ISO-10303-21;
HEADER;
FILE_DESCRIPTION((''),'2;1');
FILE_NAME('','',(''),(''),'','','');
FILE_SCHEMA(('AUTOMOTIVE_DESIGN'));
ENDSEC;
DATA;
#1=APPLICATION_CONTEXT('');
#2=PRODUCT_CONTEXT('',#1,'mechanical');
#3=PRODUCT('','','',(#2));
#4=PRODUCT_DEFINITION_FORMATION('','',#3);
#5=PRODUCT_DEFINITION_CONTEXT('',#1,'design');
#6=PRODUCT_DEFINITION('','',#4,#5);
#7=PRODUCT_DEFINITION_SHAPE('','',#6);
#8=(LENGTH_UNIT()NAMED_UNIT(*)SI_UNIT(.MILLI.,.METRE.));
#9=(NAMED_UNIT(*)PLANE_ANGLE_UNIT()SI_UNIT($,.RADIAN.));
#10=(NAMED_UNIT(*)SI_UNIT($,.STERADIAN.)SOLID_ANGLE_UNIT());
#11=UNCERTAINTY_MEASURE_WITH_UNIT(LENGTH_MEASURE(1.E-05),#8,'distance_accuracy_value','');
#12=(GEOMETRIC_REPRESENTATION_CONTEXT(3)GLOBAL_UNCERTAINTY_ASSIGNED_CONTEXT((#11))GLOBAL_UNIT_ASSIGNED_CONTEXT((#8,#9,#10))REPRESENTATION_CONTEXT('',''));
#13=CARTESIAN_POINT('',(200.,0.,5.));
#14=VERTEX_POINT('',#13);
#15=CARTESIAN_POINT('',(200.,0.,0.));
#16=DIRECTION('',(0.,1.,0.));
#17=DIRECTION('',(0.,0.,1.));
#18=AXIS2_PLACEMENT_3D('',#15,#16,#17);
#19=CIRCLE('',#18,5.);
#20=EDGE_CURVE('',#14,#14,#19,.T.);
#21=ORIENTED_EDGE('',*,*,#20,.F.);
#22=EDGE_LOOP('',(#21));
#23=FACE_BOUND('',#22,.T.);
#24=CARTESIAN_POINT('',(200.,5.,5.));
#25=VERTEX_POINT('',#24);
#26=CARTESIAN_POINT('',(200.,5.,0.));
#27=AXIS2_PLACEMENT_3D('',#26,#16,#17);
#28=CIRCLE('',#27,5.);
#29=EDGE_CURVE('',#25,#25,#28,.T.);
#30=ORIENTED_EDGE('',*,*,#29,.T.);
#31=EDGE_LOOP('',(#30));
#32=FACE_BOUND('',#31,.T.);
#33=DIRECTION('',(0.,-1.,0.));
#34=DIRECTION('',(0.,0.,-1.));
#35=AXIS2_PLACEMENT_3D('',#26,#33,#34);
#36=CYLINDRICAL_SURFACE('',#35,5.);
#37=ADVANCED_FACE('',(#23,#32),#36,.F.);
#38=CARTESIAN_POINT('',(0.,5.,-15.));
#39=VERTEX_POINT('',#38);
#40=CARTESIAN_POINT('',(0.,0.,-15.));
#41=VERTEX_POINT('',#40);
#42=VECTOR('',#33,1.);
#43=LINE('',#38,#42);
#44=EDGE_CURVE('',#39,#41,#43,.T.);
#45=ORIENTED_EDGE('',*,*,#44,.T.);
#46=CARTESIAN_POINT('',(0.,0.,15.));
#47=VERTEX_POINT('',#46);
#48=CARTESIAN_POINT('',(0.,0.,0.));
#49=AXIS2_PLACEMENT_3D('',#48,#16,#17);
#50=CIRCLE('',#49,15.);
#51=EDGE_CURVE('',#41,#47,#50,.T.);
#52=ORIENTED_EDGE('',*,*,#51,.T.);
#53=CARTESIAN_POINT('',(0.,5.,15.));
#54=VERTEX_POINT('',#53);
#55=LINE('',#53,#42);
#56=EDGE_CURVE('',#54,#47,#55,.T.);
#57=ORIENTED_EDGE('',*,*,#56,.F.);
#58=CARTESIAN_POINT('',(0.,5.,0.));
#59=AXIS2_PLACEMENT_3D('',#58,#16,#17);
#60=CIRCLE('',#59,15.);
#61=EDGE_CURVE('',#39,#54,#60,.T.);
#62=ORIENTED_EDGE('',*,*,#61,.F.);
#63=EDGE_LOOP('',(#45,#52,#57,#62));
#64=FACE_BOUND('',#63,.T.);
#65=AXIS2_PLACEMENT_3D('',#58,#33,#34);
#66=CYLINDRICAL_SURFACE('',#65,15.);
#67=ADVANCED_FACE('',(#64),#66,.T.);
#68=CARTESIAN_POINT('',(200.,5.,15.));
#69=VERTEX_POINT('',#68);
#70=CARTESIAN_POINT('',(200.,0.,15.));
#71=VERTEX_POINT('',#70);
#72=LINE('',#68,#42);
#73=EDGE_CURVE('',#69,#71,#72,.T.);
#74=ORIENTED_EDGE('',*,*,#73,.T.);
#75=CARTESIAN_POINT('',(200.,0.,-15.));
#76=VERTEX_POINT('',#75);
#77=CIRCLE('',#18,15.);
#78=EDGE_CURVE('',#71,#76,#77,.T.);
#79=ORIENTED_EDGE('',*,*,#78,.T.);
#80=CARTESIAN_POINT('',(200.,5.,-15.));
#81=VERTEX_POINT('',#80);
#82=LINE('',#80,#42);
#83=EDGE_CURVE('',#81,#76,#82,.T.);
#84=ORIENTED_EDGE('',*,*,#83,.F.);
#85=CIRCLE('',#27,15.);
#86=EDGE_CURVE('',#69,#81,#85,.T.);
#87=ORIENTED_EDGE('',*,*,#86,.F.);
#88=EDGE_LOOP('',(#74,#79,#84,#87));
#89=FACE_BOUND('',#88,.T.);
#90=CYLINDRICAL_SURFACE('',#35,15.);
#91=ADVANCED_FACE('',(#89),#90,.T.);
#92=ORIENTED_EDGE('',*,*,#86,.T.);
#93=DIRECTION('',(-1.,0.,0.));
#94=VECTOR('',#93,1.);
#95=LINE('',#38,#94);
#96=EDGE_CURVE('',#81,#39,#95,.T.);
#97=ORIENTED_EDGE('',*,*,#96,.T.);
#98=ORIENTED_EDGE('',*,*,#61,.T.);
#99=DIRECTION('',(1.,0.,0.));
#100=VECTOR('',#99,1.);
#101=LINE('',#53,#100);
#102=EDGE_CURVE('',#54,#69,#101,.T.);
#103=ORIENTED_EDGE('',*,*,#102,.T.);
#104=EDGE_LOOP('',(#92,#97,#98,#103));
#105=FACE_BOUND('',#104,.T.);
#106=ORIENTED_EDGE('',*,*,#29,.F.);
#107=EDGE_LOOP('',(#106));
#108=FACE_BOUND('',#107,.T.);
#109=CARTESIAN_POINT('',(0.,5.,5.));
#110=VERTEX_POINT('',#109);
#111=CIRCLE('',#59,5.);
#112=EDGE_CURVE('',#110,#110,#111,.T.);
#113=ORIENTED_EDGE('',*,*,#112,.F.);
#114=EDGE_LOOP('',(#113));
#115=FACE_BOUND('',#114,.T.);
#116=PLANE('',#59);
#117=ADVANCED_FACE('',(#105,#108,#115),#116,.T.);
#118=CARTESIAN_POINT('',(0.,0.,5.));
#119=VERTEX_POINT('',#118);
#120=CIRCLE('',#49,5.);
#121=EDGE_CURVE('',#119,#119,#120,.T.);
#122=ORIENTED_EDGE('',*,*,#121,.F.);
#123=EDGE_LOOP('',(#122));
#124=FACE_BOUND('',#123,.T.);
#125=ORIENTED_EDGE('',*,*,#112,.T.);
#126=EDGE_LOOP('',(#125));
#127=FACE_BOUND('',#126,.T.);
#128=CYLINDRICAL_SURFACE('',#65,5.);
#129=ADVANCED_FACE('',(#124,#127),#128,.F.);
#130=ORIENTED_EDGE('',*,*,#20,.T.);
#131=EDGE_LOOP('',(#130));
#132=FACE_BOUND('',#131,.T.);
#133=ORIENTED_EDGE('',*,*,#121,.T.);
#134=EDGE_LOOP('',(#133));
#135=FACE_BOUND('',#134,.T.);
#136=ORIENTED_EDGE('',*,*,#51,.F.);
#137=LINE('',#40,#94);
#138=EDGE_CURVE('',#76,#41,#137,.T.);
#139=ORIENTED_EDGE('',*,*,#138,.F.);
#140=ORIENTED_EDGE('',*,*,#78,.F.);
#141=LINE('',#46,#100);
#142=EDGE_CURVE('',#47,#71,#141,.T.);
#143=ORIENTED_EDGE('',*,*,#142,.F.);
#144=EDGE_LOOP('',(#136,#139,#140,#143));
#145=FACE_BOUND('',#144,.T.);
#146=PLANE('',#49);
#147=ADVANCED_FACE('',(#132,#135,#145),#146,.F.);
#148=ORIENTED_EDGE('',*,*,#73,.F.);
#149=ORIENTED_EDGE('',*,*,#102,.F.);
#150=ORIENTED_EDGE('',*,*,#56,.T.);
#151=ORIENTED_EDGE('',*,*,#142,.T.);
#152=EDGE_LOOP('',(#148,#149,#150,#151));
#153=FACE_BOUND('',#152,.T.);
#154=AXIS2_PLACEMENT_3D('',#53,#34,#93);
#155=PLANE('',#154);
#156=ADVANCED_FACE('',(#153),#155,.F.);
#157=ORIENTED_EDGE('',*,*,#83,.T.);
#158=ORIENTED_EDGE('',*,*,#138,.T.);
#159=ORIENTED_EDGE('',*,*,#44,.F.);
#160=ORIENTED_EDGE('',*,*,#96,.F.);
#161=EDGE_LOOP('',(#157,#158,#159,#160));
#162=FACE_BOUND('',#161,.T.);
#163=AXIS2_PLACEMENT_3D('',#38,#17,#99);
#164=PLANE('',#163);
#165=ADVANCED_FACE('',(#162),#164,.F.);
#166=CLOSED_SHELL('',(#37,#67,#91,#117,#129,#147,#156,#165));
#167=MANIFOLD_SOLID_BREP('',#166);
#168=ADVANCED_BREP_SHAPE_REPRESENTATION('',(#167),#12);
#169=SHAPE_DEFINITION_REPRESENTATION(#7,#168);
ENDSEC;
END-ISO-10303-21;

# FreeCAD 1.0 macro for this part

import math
import FreeCAD as App
import Part
import Sketcher
from FreeCAD import Vector
Q = App.Units.Quantity

doc = App.newDocument("Part")
body = doc.addObject("PartDesign::Body", "Body")

sketch1 = body.newObject("Sketcher::SketchObject", "Sketch")
sketch1.AttachmentSupport = (doc.getObject("XZ_Plane"), [""])
sketch1.MapMode = "FlatFace"
sketch1.addGeometry([
    Part.LineSegment(Vector(200, -15, 0), Vector(0, -15, 0)),
    Part.ArcOfCircle(Part.Circle(Vector(0, 0, 0), Vector(0, 0, 1), 15), math.radians(90), math.radians(270)),
    Part.LineSegment(Vector(0, 15, 0), Vector(200, 15, 0)),
    Part.ArcOfCircle(Part.Circle(Vector(200, 0, 0), Vector(0, 0, 1), 15), math.radians(-90), math.radians(90)),
    Part.Circle(Vector(200, 0, 0), Vector(0, 0, 1), 5),
    Part.Circle(Vector(0, 0, 0), Vector(0, 0, 1), 5),
], False)
sketch1.addConstraint([
    Sketcher.Constraint("Tangent", 0, 2, 1, 2),
    Sketcher.Constraint("Tangent", 1, 1, 2, 1),
    Sketcher.Constraint("Tangent", 2, 2, 3, 2),
    Sketcher.Constraint("Tangent", 3, 1, 0, 1),
    Sketcher.Constraint("Horizontal", 0),
    Sketcher.Constraint("Horizontal", 2),
    Sketcher.Constraint("Coincident", 1, 3, -1, 1),
    Sketcher.Constraint("Coincident", 5, 3, -1, 1),
    Sketcher.Constraint("Coincident", 4, 3, 3, 3),
    Sketcher.Constraint("Equal", 4, 5),
    Sketcher.Constraint("Diameter", 4, Q("10 mm")),
    Sketcher.Constraint("Radius", 1, Q("15 mm")),
    Sketcher.Constraint("DistanceX", 0, 2, 0, 1, Q("200 mm")),
])
pad1 = body.newObject("PartDesign::Pad", "Pad")
pad1.Profile = sketch1
pad1.Length = 5
pad1.Reversed = True

doc.recompute()
